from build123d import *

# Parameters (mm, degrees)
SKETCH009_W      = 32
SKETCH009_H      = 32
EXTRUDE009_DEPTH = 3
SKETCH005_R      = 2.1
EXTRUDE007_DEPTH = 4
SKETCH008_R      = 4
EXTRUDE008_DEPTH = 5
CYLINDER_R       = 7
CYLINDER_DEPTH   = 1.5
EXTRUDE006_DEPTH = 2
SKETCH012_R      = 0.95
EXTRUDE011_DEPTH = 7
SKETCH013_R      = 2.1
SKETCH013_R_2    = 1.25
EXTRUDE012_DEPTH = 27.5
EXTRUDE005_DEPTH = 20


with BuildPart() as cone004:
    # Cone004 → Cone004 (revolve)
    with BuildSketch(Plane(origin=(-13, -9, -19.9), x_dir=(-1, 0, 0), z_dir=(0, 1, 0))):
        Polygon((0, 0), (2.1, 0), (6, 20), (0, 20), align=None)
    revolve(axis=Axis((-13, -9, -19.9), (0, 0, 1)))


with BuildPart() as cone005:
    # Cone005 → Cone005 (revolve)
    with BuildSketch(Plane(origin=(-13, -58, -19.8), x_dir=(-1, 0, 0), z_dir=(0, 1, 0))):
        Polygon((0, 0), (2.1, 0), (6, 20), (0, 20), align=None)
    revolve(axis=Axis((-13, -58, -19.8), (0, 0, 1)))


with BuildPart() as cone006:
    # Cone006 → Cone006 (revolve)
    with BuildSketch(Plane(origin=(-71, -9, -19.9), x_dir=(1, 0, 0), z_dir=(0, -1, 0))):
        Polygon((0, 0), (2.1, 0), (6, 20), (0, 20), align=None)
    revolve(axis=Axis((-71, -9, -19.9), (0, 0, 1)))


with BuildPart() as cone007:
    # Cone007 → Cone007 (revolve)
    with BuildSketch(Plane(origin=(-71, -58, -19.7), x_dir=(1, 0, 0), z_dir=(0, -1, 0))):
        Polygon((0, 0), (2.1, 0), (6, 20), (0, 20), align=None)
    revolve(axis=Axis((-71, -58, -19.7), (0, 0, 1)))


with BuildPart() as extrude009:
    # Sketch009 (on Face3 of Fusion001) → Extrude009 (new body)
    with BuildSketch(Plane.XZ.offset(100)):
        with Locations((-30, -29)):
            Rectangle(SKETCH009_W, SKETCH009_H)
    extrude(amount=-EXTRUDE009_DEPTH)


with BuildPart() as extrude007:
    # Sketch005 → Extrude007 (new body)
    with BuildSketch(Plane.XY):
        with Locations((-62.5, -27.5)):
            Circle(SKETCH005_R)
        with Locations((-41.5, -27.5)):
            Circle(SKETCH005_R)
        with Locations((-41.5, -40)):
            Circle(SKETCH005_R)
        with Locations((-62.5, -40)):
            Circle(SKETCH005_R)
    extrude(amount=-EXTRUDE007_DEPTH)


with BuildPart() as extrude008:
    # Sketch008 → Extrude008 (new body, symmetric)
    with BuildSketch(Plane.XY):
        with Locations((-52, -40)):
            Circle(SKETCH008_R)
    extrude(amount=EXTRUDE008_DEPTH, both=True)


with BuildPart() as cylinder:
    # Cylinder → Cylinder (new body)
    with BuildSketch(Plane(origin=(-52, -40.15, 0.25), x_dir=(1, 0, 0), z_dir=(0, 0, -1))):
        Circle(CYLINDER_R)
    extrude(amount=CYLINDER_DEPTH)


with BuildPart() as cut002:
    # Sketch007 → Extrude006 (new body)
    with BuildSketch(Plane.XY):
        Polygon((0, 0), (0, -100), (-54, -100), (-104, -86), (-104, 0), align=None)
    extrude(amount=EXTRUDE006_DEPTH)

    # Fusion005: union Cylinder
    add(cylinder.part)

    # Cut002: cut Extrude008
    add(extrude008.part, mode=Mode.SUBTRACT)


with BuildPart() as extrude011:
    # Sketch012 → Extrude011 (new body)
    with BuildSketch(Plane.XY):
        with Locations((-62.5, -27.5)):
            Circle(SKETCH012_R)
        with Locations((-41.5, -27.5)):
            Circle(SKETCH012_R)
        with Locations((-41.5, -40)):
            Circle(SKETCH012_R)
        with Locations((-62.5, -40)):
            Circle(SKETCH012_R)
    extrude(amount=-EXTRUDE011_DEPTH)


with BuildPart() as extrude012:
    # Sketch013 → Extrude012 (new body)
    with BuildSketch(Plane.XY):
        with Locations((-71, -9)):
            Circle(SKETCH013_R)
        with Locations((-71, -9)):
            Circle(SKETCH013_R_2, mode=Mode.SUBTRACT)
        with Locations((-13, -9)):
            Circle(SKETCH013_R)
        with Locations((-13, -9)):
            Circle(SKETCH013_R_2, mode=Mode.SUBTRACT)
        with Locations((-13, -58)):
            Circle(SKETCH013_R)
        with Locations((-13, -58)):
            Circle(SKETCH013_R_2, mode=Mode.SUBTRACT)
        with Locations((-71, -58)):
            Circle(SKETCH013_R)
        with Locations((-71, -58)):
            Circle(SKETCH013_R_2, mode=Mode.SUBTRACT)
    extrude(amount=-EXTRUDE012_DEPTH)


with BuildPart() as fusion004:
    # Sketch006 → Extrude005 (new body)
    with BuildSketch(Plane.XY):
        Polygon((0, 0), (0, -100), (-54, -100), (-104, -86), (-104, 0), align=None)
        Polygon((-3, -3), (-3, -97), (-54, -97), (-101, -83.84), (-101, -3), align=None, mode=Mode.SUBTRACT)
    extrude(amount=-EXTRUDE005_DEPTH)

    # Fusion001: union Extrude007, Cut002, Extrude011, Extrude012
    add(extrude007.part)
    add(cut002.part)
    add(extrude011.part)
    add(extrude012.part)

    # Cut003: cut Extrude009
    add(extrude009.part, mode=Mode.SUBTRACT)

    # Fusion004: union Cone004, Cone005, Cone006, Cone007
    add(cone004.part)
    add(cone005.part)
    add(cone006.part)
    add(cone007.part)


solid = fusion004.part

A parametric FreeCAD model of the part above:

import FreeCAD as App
import Part
import Sketcher
Q = App.Units.Quantity


def add_polygon(sketch, points):
    """Adds a closed chain of lines whose ends are joined by coincident constraints."""
    first, n = sketch.GeometryCount, len(points)
    for a, b in zip(points, points[1:] + points[:1]):
        sketch.addGeometry(Part.LineSegment(App.Vector(*a, 0), App.Vector(*b, 0)), False)
    for i in range(n):
        sketch.addConstraint(Sketcher.Constraint("Coincident", first + i, 2, first + (i + 1) % n, 1))

doc = App.newDocument("Part")
params = doc.addObject("Spreadsheet::Sheet", "Params")
for row, (alias, value) in enumerate([
    ("sketch1_width", "6 mm"),
    ("sketch1_height", "20 mm"),
    ("sketch1_width2", "2.1 mm"),
    ("revolution_angle", "360 deg"),
    ("sketch2_width", "6 mm"),
    ("sketch2_height", "20 mm"),
    ("sketch2_width2", "2.1 mm"),
    ("revolution2_angle", "360 deg"),
    ("sketch3_width", "6 mm"),
    ("sketch3_height", "20 mm"),
    ("sketch3_width2", "2.1 mm"),
    ("revolution3_angle", "360 deg"),
    ("sketch4_width", "6 mm"),
    ("sketch4_height", "20 mm"),
    ("sketch4_width2", "2.1 mm"),
    ("revolution4_angle", "360 deg"),
    ("sketch5_width", "32 mm"),
    ("pad1_length", "3 mm"),
    ("sketch6_diameter", "4.2 mm"),
    ("pad2_length", "4 mm"),
    ("sketch7_diameter", "8 mm"),
    ("pad3_length", "10 mm"),
    ("sketch8_diameter", "14 mm"),
    ("pad4_length", "1.5 mm"),
    ("sketch9_width", "104 mm"),
    ("sketch9_width2", "54 mm"),
    ("sketch9_height", "100 mm"),
    ("sketch9_height2", "86 mm"),
    ("pad5_length", "2 mm"),
    ("sketch10_diameter", "1.9 mm"),
    ("pad6_length", "7 mm"),
    ("sketch11_diameter", "4.2 mm"),
    ("sketch11_diameter2", "2.5 mm"),
    ("pad7_length", "27.5 mm"),
    ("sketch12_width", "104 mm"),
    ("sketch12_width2", "54 mm"),
    ("sketch12_width3", "51 mm"),
    ("sketch12_width4", "98 mm"),
    ("sketch12_height", "100 mm"),
    ("pad8_length", "20 mm"),
], start=1):
    params.set(f"A{row}", alias)
    params.set(f"B{row}", "=" + value)
    params.setAlias(f"B{row}", alias)

body = doc.addObject("PartDesign::Body", "Body")

sketch1 = doc.addObject("Sketcher::SketchObject", "Sketch")
body.addObject(sketch1)
sketch1.AttachmentSupport = (doc.XZ_Plane, [""])
sketch1.MapMode = "FlatFace"
sketch1.AttachmentOffset = App.Placement(App.Vector(0, 0, 9), App.Rotation())
add_polygon(sketch1, [(-13, -19.9), (-15.1, -19.9), (-19, 0.1), (-13, 0.1)])
sketch1.addGeometry(Part.LineSegment(App.Vector(-13, -19.9, 0), App.Vector(-13, 0.1, 0)), True)
sketch1.addConstraint(Sketcher.Constraint("Horizontal", 0))
sketch1.addConstraint(Sketcher.Constraint("Horizontal", 2))
sketch1.addConstraint(Sketcher.Constraint("Vertical", 3))
sketch1.addConstraint(Sketcher.Constraint("Vertical", 4))
sketch1.addConstraint(Sketcher.Constraint("Coincident", 4, 1, 3, 2))
sketch1.addConstraint(Sketcher.Constraint("Horizontal", 1, 2, 4, 2))
sketch1.addConstraint(Sketcher.Constraint("DistanceX", 2, 1, 2, 2, Q("6 mm")))
sketch1.addConstraint(Sketcher.Constraint("DistanceY", 3, 2, 3, 1, Q("20 mm")))
sketch1.addConstraint(Sketcher.Constraint("DistanceX", 0, 2, 0, 1, Q("2.1 mm")))
sketch1.addConstraint(Sketcher.Constraint("DistanceX", 1, 2, -1, 1, Q("19 mm")))
sketch1.addConstraint(Sketcher.Constraint("DistanceY", 0, 2, -1, 1, Q("19.9 mm")))
sketch1.setExpression("Constraints[10]", "Params.sketch1_width")
sketch1.setExpression("Constraints[11]", "Params.sketch1_height")
sketch1.setExpression("Constraints[12]", "Params.sketch1_width2")
revolution = doc.addObject("PartDesign::Revolution", "Revolution")
body.addObject(revolution)
revolution.Profile = sketch1
revolution.ReferenceAxis = (sketch1, ["Axis0"])
revolution.setExpression("Angle", "Params.revolution_angle")
body2 = doc.addObject("PartDesign::Body", "Body001")

sketch2 = doc.addObject("Sketcher::SketchObject", "Sketch001")
body2.addObject(sketch2)
sketch2.AttachmentSupport = (doc.getObject("XZ_Plane001"), [""])
sketch2.MapMode = "FlatFace"
sketch2.AttachmentOffset = App.Placement(App.Vector(0, 0, 58), App.Rotation())
add_polygon(sketch2, [(-13, -19.8), (-15.1, -19.8), (-19, 0.2), (-13, 0.2)])
sketch2.addGeometry(Part.LineSegment(App.Vector(-13, -19.8, 0), App.Vector(-13, 0.2, 0)), True)
sketch2.addConstraint(Sketcher.Constraint("Horizontal", 0))
sketch2.addConstraint(Sketcher.Constraint("Horizontal", 2))
sketch2.addConstraint(Sketcher.Constraint("Vertical", 3))
sketch2.addConstraint(Sketcher.Constraint("Vertical", 4))
sketch2.addConstraint(Sketcher.Constraint("Coincident", 4, 1, 3, 2))
sketch2.addConstraint(Sketcher.Constraint("Horizontal", 1, 2, 4, 2))
sketch2.addConstraint(Sketcher.Constraint("DistanceX", 2, 1, 2, 2, Q("6 mm")))
sketch2.addConstraint(Sketcher.Constraint("DistanceY", 3, 2, 3, 1, Q("20 mm")))
sketch2.addConstraint(Sketcher.Constraint("DistanceX", 0, 2, 0, 1, Q("2.1 mm")))
sketch2.addConstraint(Sketcher.Constraint("DistanceX", 1, 2, -1, 1, Q("19 mm")))
sketch2.addConstraint(Sketcher.Constraint("DistanceY", 0, 2, -1, 1, Q("19.8 mm")))
sketch2.setExpression("Constraints[10]", "Params.sketch2_width")
sketch2.setExpression("Constraints[11]", "Params.sketch2_height")
sketch2.setExpression("Constraints[12]", "Params.sketch2_width2")
revolution2 = doc.addObject("PartDesign::Revolution", "Revolution001")
body2.addObject(revolution2)
revolution2.Profile = sketch2
revolution2.ReferenceAxis = (sketch2, ["Axis0"])
revolution2.setExpression("Angle", "Params.revolution2_angle")
body3 = doc.addObject("PartDesign::Body", "Body002")

sketch3 = doc.addObject("Sketcher::SketchObject", "Sketch002")
body3.addObject(sketch3)
sketch3.AttachmentSupport = (doc.getObject("XZ_Plane002"), [""])
sketch3.MapMode = "FlatFace"
sketch3.AttachmentOffset = App.Placement(App.Vector(0, 0, 9), App.Rotation())
add_polygon(sketch3, [(-71, -19.9), (-68.9, -19.9), (-65, 0.1), (-71, 0.1)])
sketch3.addGeometry(Part.LineSegment(App.Vector(-71, -19.9, 0), App.Vector(-71, 0.1, 0)), True)
sketch3.addConstraint(Sketcher.Constraint("Horizontal", 0))
sketch3.addConstraint(Sketcher.Constraint("Horizontal", 2))
sketch3.addConstraint(Sketcher.Constraint("Vertical", 3))
sketch3.addConstraint(Sketcher.Constraint("Vertical", 4))
sketch3.addConstraint(Sketcher.Constraint("Coincident", 4, 1, 3, 2))
sketch3.addConstraint(Sketcher.Constraint("Horizontal", 1, 2, 4, 2))
sketch3.addConstraint(Sketcher.Constraint("DistanceX", 2, 2, 2, 1, Q("6 mm")))
sketch3.addConstraint(Sketcher.Constraint("DistanceY", 3, 2, 3, 1, Q("20 mm")))
sketch3.addConstraint(Sketcher.Constraint("DistanceX", 0, 1, 0, 2, Q("2.1 mm")))
sketch3.addConstraint(Sketcher.Constraint("DistanceX", 1, 2, -1, 1, Q("65 mm")))
sketch3.addConstraint(Sketcher.Constraint("DistanceY", 0, 2, -1, 1, Q("19.9 mm")))
sketch3.setExpression("Constraints[10]", "Params.sketch3_width")
sketch3.setExpression("Constraints[11]", "Params.sketch3_height")
sketch3.setExpression("Constraints[12]", "Params.sketch3_width2")
revolution3 = doc.addObject("PartDesign::Revolution", "Revolution002")
body3.addObject(revolution3)
revolution3.Profile = sketch3
revolution3.ReferenceAxis = (sketch3, ["Axis0"])
revolution3.setExpression("Angle", "Params.revolution3_angle")
body4 = doc.addObject("PartDesign::Body", "Body003")

sketch4 = doc.addObject("Sketcher::SketchObject", "Sketch003")
body4.addObject(sketch4)
sketch4.AttachmentSupport = (doc.getObject("XZ_Plane003"), [""])
sketch4.MapMode = "FlatFace"
sketch4.AttachmentOffset = App.Placement(App.Vector(0, 0, 58), App.Rotation())
add_polygon(sketch4, [(-71, -19.7), (-68.9, -19.7), (-65, 0.3), (-71, 0.3)])
sketch4.addGeometry(Part.LineSegment(App.Vector(-71, -19.7, 0), App.Vector(-71, 0.3, 0)), True)
sketch4.addConstraint(Sketcher.Constraint("Horizontal", 0))
sketch4.addConstraint(Sketcher.Constraint("Horizontal", 2))
sketch4.addConstraint(Sketcher.Constraint("Vertical", 3))
sketch4.addConstraint(Sketcher.Constraint("Vertical", 4))
sketch4.addConstraint(Sketcher.Constraint("Coincident", 4, 1, 3, 2))
sketch4.addConstraint(Sketcher.Constraint("Horizontal", 1, 2, 4, 2))
sketch4.addConstraint(Sketcher.Constraint("DistanceX", 2, 2, 2, 1, Q("6 mm")))
sketch4.addConstraint(Sketcher.Constraint("DistanceY", 3, 2, 3, 1, Q("20 mm")))
sketch4.addConstraint(Sketcher.Constraint("DistanceX", 0, 1, 0, 2, Q("2.1 mm")))
sketch4.addConstraint(Sketcher.Constraint("DistanceX", 1, 2, -1, 1, Q("65 mm")))
sketch4.addConstraint(Sketcher.Constraint("DistanceY", 0, 2, -1, 1, Q("19.7 mm")))
sketch4.setExpression("Constraints[10]", "Params.sketch4_width")
sketch4.setExpression("Constraints[11]", "Params.sketch4_height")
sketch4.setExpression("Constraints[12]", "Params.sketch4_width2")
revolution4 = doc.addObject("PartDesign::Revolution", "Revolution003")
body4.addObject(revolution4)
revolution4.Profile = sketch4
revolution4.ReferenceAxis = (sketch4, ["Axis0"])
revolution4.setExpression("Angle", "Params.revolution4_angle")
body5 = doc.addObject("PartDesign::Body", "Body004")

sketch5 = doc.addObject("Sketcher::SketchObject", "Sketch004")
body5.addObject(sketch5)
sketch5.AttachmentSupport = (doc.getObject("XZ_Plane004"), [""])
sketch5.MapMode = "FlatFace"
sketch5.AttachmentOffset = App.Placement(App.Vector(0, 0, 100), App.Rotation())
add_polygon(sketch5, [(-46, -13), (-46, -45), (-14, -45), (-14, -13)])
sketch5.addConstraint(Sketcher.Constraint("Vertical", 0))
sketch5.addConstraint(Sketcher.Constraint("Horizontal", 1))
sketch5.addConstraint(Sketcher.Constraint("Vertical", 2))
sketch5.addConstraint(Sketcher.Constraint("Horizontal", 3))
sketch5.addConstraint(Sketcher.Constraint("Equal", 3, 0))
sketch5.addConstraint(Sketcher.Constraint("DistanceX", 1, 1, 1, 2, Q("32 mm")))
sketch5.addConstraint(Sketcher.Constraint("DistanceX", 0, 2, -1, 1, Q("46 mm")))
sketch5.addConstraint(Sketcher.Constraint("DistanceY", 0, 2, -1, 1, Q("45 mm")))
sketch5.setExpression("Constraints[9]", "Params.sketch5_width")
pad1 = doc.addObject("PartDesign::Pad", "Pad")
body5.addObject(pad1)
pad1.Profile = sketch5
pad1.setExpression("Length", "Params.pad1_length")
pad1.Reversed = True
body6 = doc.addObject("PartDesign::Body", "Body005")
body6.AllowCompound = True

sketch6 = doc.addObject("Sketcher::SketchObject", "Sketch005")
body6.addObject(sketch6)
sketch6.AttachmentSupport = (doc.getObject("XY_Plane005"), [""])
sketch6.MapMode = "FlatFace"
sketch6.addGeometry(Part.Circle(App.Vector(-62.5, -27.5, 0), App.Vector(0, 0, 1), 2.1), False)
sketch6.addGeometry(Part.Circle(App.Vector(-41.5, -27.5, 0), App.Vector(0, 0, 1), 2.1), False)
sketch6.addGeometry(Part.Circle(App.Vector(-41.5, -40, 0), App.Vector(0, 0, 1), 2.1), False)
sketch6.addGeometry(Part.Circle(App.Vector(-62.5, -40, 0), App.Vector(0, 0, 1), 2.1), False)
sketch6.addConstraint(Sketcher.Constraint("Equal", 0, 1))
sketch6.addConstraint(Sketcher.Constraint("Equal", 1, 2))
sketch6.addConstraint(Sketcher.Constraint("Equal", 2, 3))
sketch6.addConstraint(Sketcher.Constraint("Horizontal", 0, 3, 1, 3))
sketch6.addConstraint(Sketcher.Constraint("Horizontal", 2, 3, 3, 3))
sketch6.addConstraint(Sketcher.Constraint("Vertical", 1, 3, 2, 3))
sketch6.addConstraint(Sketcher.Constraint("Vertical", 0, 3, 3, 3))
sketch6.addConstraint(Sketcher.Constraint("Diameter", 0, Q("4.2 mm")))
sketch6.addConstraint(Sketcher.Constraint("DistanceY", 2, 3, -1, 1, Q("40 mm")))
sketch6.addConstraint(Sketcher.Constraint("DistanceX", 0, 3, 1, 3, Q("21 mm")))
sketch6.addConstraint(Sketcher.Constraint("DistanceX", 0, 3, -1, 1, Q("62.5 mm")))
sketch6.addConstraint(Sketcher.Constraint("DistanceY", 0, 3, -1, 1, Q("27.5 mm")))
sketch6.setExpression("Constraints[7]", "Params.sketch6_diameter")
pad2 = doc.addObject("PartDesign::Pad", "Pad001")
body6.addObject(pad2)
pad2.Profile = sketch6
pad2.setExpression("Length", "Params.pad2_length")
pad2.Reversed = True
body7 = doc.addObject("PartDesign::Body", "Body006")

sketch7 = doc.addObject("Sketcher::SketchObject", "Sketch006")
body7.addObject(sketch7)
sketch7.AttachmentSupport = (doc.getObject("XY_Plane006"), [""])
sketch7.MapMode = "FlatFace"
sketch7.addGeometry(Part.Circle(App.Vector(-52, -40, 0), App.Vector(0, 0, 1), 4), False)
sketch7.addConstraint(Sketcher.Constraint("Diameter", 0, Q("8 mm")))
sketch7.addConstraint(Sketcher.Constraint("DistanceX", 0, 3, -1, 1, Q("52 mm")))
sketch7.addConstraint(Sketcher.Constraint("DistanceY", 0, 3, -1, 1, Q("40 mm")))
sketch7.setExpression("Constraints[0]", "Params.sketch7_diameter")
pad3 = doc.addObject("PartDesign::Pad", "Pad002")
body7.addObject(pad3)
pad3.Profile = sketch7
pad3.setExpression("Length", "Params.pad3_length")
pad3.Midplane = True
body8 = doc.addObject("PartDesign::Body", "Body007")

sketch8 = doc.addObject("Sketcher::SketchObject", "Sketch007")
body8.addObject(sketch8)
sketch8.AttachmentSupport = (doc.getObject("XY_Plane007"), [""])
sketch8.MapMode = "FlatFace"
sketch8.AttachmentOffset = App.Placement(App.Vector(0, 0, 0.25), App.Rotation())
sketch8.addGeometry(Part.Circle(App.Vector(-52, -40.15, 0), App.Vector(0, 0, 1), 7), False)
sketch8.addConstraint(Sketcher.Constraint("Diameter", 0, Q("14 mm")))
sketch8.addConstraint(Sketcher.Constraint("DistanceX", 0, 3, -1, 1, Q("52 mm")))
sketch8.addConstraint(Sketcher.Constraint("DistanceY", 0, 3, -1, 1, Q("40.15 mm")))
sketch8.setExpression("Constraints[0]", "Params.sketch8_diameter")
pad4 = doc.addObject("PartDesign::Pad", "Pad003")
body8.addObject(pad4)
pad4.Profile = sketch8
pad4.setExpression("Length", "Params.pad4_length")
pad4.Reversed = True
body9 = doc.addObject("PartDesign::Body", "Body008")

sketch9 = doc.addObject("Sketcher::SketchObject", "Sketch008")
body9.addObject(sketch9)
sketch9.AttachmentSupport = (doc.getObject("XY_Plane008"), [""])
sketch9.MapMode = "FlatFace"
add_polygon(sketch9, [(0, -100), (0, 0), (-104, 0), (-104, -86), (-54, -100)])
sketch9.addConstraint(Sketcher.Constraint("Vertical", 0))
sketch9.addConstraint(Sketcher.Constraint("Horizontal", 1))
sketch9.addConstraint(Sketcher.Constraint("Vertical", 2))
sketch9.addConstraint(Sketcher.Constraint("Horizontal", 4))
sketch9.addConstraint(Sketcher.Constraint("Coincident", 0, 2, -1, 1))
sketch9.addConstraint(Sketcher.Constraint("DistanceX", 1, 2, 1, 1, Q("104 mm")))
sketch9.addConstraint(Sketcher.Constraint("DistanceX", 4, 1, 4, 2, Q("54 mm")))
sketch9.addConstraint(Sketcher.Constraint("DistanceY", 0, 1, 0, 2, Q("100 mm")))
sketch9.addConstraint(Sketcher.Constraint("DistanceY", 2, 2, 2, 1, Q("86 mm")))
sketch9.setExpression("Constraints[10]", "Params.sketch9_width")
sketch9.setExpression("Constraints[11]", "Params.sketch9_width2")
sketch9.setExpression("Constraints[12]", "Params.sketch9_height")
sketch9.setExpression("Constraints[13]", "Params.sketch9_height2")
pad5 = doc.addObject("PartDesign::Pad", "Pad004")
body9.addObject(pad5)
pad5.Profile = sketch9
pad5.setExpression("Length", "Params.pad5_length")
doc.recompute()

boolean = doc.addObject("PartDesign::Boolean", "Boolean")
body9.addObject(boolean)
boolean.Type = "Fuse"
boolean.addObjects([body8])
doc.recompute()

boolean2 = doc.addObject("PartDesign::Boolean", "Boolean001")
body9.addObject(boolean2)
boolean2.Type = "Cut"
boolean2.addObjects([body7])
body10 = doc.addObject("PartDesign::Body", "Body009")
body10.AllowCompound = True

sketch10 = doc.addObject("Sketcher::SketchObject", "Sketch009")
body10.addObject(sketch10)
sketch10.AttachmentSupport = (doc.getObject("XY_Plane009"), [""])
sketch10.MapMode = "FlatFace"
sketch10.addGeometry(Part.Circle(App.Vector(-62.5, -27.5, 0), App.Vector(0, 0, 1), 0.95), False)
sketch10.addGeometry(Part.Circle(App.Vector(-41.5, -27.5, 0), App.Vector(0, 0, 1), 0.95), False)
sketch10.addGeometry(Part.Circle(App.Vector(-41.5, -40, 0), App.Vector(0, 0, 1), 0.95), False)
sketch10.addGeometry(Part.Circle(App.Vector(-62.5, -40, 0), App.Vector(0, 0, 1), 0.95), False)
sketch10.addConstraint(Sketcher.Constraint("Equal", 0, 1))
sketch10.addConstraint(Sketcher.Constraint("Equal", 1, 2))
sketch10.addConstraint(Sketcher.Constraint("Equal", 2, 3))
sketch10.addConstraint(Sketcher.Constraint("Horizontal", 0, 3, 1, 3))
sketch10.addConstraint(Sketcher.Constraint("Horizontal", 2, 3, 3, 3))
sketch10.addConstraint(Sketcher.Constraint("Vertical", 1, 3, 2, 3))
sketch10.addConstraint(Sketcher.Constraint("Vertical", 0, 3, 3, 3))
sketch10.addConstraint(Sketcher.Constraint("Diameter", 0, Q("1.9 mm")))
sketch10.addConstraint(Sketcher.Constraint("DistanceY", 2, 3, -1, 1, Q("40 mm")))
sketch10.addConstraint(Sketcher.Constraint("DistanceX", 0, 3, 1, 3, Q("21 mm")))
sketch10.addConstraint(Sketcher.Constraint("DistanceX", 0, 3, -1, 1, Q("62.5 mm")))
sketch10.addConstraint(Sketcher.Constraint("DistanceY", 0, 3, -1, 1, Q("27.5 mm")))
sketch10.setExpression("Constraints[7]", "Params.sketch10_diameter")
pad6 = doc.addObject("PartDesign::Pad", "Pad005")
body10.addObject(pad6)
pad6.Profile = sketch10
pad6.setExpression("Length", "Params.pad6_length")
pad6.Reversed = True
body11 = doc.addObject("PartDesign::Body", "Body010")
body11.AllowCompound = True

sketch11 = doc.addObject("Sketcher::SketchObject", "Sketch010")
body11.addObject(sketch11)
sketch11.AttachmentSupport = (doc.getObject("XY_Plane010"), [""])
sketch11.MapMode = "FlatFace"
sketch11.addGeometry(Part.Circle(App.Vector(-71, -9, 0), App.Vector(0, 0, 1), 2.1), False)
sketch11.addGeometry(Part.Circle(App.Vector(-71, -9, 0), App.Vector(0, 0, 1), 1.25), False)
sketch11.addGeometry(Part.Circle(App.Vector(-13, -9, 0), App.Vector(0, 0, 1), 2.1), False)
sketch11.addGeometry(Part.Circle(App.Vector(-13, -9, 0), App.Vector(0, 0, 1), 1.25), False)
sketch11.addGeometry(Part.Circle(App.Vector(-13, -58, 0), App.Vector(0, 0, 1), 2.1), False)
sketch11.addGeometry(Part.Circle(App.Vector(-13, -58, 0), App.Vector(0, 0, 1), 1.25), False)
sketch11.addGeometry(Part.Circle(App.Vector(-71, -58, 0), App.Vector(0, 0, 1), 2.1), False)
sketch11.addGeometry(Part.Circle(App.Vector(-71, -58, 0), App.Vector(0, 0, 1), 1.25), False)
sketch11.addConstraint(Sketcher.Constraint("Coincident", 1, 3, 0, 3))
sketch11.addConstraint(Sketcher.Constraint("Coincident", 3, 3, 2, 3))
sketch11.addConstraint(Sketcher.Constraint("Coincident", 5, 3, 4, 3))
sketch11.addConstraint(Sketcher.Constraint("Coincident", 7, 3, 6, 3))
sketch11.addConstraint(Sketcher.Constraint("Equal", 0, 2))
sketch11.addConstraint(Sketcher.Constraint("Equal", 1, 3))
sketch11.addConstraint(Sketcher.Constraint("Equal", 2, 4))
sketch11.addConstraint(Sketcher.Constraint("Equal", 3, 5))
sketch11.addConstraint(Sketcher.Constraint("Equal", 4, 6))
sketch11.addConstraint(Sketcher.Constraint("Equal", 5, 7))
sketch11.addConstraint(Sketcher.Constraint("Horizontal", 1, 3, 2, 3))
sketch11.addConstraint(Sketcher.Constraint("Horizontal", 5, 3, 6, 3))
sketch11.addConstraint(Sketcher.Constraint("Vertical", 3, 3, 4, 3))
sketch11.addConstraint(Sketcher.Constraint("Vertical", 1, 3, 6, 3))
sketch11.addConstraint(Sketcher.Constraint("Diameter", 0, Q("4.2 mm")))
sketch11.addConstraint(Sketcher.Constraint("Diameter", 1, Q("2.5 mm")))
sketch11.addConstraint(Sketcher.Constraint("DistanceX", 0, 3, -1, 1, Q("71 mm")))
sketch11.addConstraint(Sketcher.Constraint("DistanceY", 0, 3, -1, 1, Q("9 mm")))
sketch11.addConstraint(Sketcher.Constraint("DistanceX", 2, 3, -1, 1, Q("13 mm")))
sketch11.addConstraint(Sketcher.Constraint("DistanceY", 4, 3, -1, 1, Q("58 mm")))
sketch11.setExpression("Constraints[14]", "Params.sketch11_diameter")
sketch11.setExpression("Constraints[15]", "Params.sketch11_diameter2")
pad7 = doc.addObject("PartDesign::Pad", "Pad006")
body11.addObject(pad7)
pad7.Profile = sketch11
pad7.setExpression("Length", "Params.pad7_length")
pad7.Reversed = True
body12 = doc.addObject("PartDesign::Body", "Body011")
body12.AllowCompound = True

sketch12 = doc.addObject("Sketcher::SketchObject", "Sketch011")
body12.addObject(sketch12)
sketch12.AttachmentSupport = (doc.getObject("XY_Plane011"), [""])
sketch12.MapMode = "FlatFace"
add_polygon(sketch12, [(0, -100), (0, 0), (-104, 0), (-104, -86), (-54, -100)])
add_polygon(sketch12, [(-3, -3), (-3, -97), (-54, -97), (-101, -83.84), (-101, -3)])
sketch12.addConstraint(Sketcher.Constraint("Vertical", 0))
sketch12.addConstraint(Sketcher.Constraint("Horizontal", 1))
sketch12.addConstraint(Sketcher.Constraint("Vertical", 2))
sketch12.addConstraint(Sketcher.Constraint("Horizontal", 4))
sketch12.addConstraint(Sketcher.Constraint("Vertical", 5))
sketch12.addConstraint(Sketcher.Constraint("Horizontal", 6))
sketch12.addConstraint(Sketcher.Constraint("Vertical", 8))
sketch12.addConstraint(Sketcher.Constraint("Horizontal", 9))
sketch12.addConstraint(Sketcher.Constraint("Coincident", 0, 2, -1, 1))
sketch12.addConstraint(Sketcher.Constraint("Parallel", 3, 7))
sketch12.addConstraint(Sketcher.Constraint("Vertical", 3, 2, 6, 2))
sketch12.addConstraint(Sketcher.Constraint("DistanceX", 1, 2, 1, 1, Q("104 mm")))
sketch12.addConstraint(Sketcher.Constraint("DistanceX", 4, 1, 4, 2, Q("54 mm")))
sketch12.addConstraint(Sketcher.Constraint("DistanceX", 6, 2, 6, 1, Q("51 mm")))
sketch12.addConstraint(Sketcher.Constraint("DistanceX", 9, 1, 9, 2, Q("98 mm")))
sketch12.addConstraint(Sketcher.Constraint("DistanceY", 0, 1, 0, 2, Q("100 mm")))
sketch12.addConstraint(Sketcher.Constraint("DistanceY", 2, 2, 2, 1, Q("86 mm")))
sketch12.addConstraint(Sketcher.Constraint("DistanceY", 5, 2, 5, 1, Q("94 mm")))
sketch12.addConstraint(Sketcher.Constraint("DistanceY", 5, 2, -1, 1, Q("97 mm")))
sketch12.setExpression("Constraints[21]", "Params.sketch12_width")
sketch12.setExpression("Constraints[22]", "Params.sketch12_width2")
sketch12.setExpression("Constraints[23]", "Params.sketch12_width3")
sketch12.setExpression("Constraints[24]", "Params.sketch12_width4")
sketch12.setExpression("Constraints[25]", "Params.sketch12_height")
pad8 = doc.addObject("PartDesign::Pad", "Pad007")
body12.addObject(pad8)
pad8.Profile = sketch12
pad8.setExpression("Length", "Params.pad8_length")
pad8.Reversed = True
doc.recompute()

boolean3 = doc.addObject("PartDesign::Boolean", "Boolean002")
body12.addObject(boolean3)
boolean3.Type = "Fuse"
boolean3.addObjects([body6])
doc.recompute()

boolean4 = doc.addObject("PartDesign::Boolean", "Boolean003")
body12.addObject(boolean4)
boolean4.Type = "Fuse"
boolean4.addObjects([body9])
doc.recompute()

boolean5 = doc.addObject("PartDesign::Boolean", "Boolean004")
body12.addObject(boolean5)
boolean5.Type = "Fuse"
boolean5.addObjects([body10])
doc.recompute()

boolean6 = doc.addObject("PartDesign::Boolean", "Boolean005")
body12.addObject(boolean6)
boolean6.Type = "Fuse"
boolean6.addObjects([body11])
doc.recompute()

boolean7 = doc.addObject("PartDesign::Boolean", "Boolean006")
body12.addObject(boolean7)
boolean7.Type = "Cut"
boolean7.addObjects([body5])
doc.recompute()

boolean8 = doc.addObject("PartDesign::Boolean", "Boolean007")
body12.addObject(boolean8)
boolean8.Type = "Fuse"
boolean8.addObjects([body])
doc.recompute()

boolean9 = doc.addObject("PartDesign::Boolean", "Boolean008")
body12.addObject(boolean9)
boolean9.Type = "Fuse"
boolean9.addObjects([body2])
doc.recompute()

boolean10 = doc.addObject("PartDesign::Boolean", "Boolean009")
body12.addObject(boolean10)
boolean10.Type = "Fuse"
boolean10.addObjects([body3])
doc.recompute()

boolean11 = doc.addObject("PartDesign::Boolean", "Boolean010")
body12.addObject(boolean11)
boolean11.Type = "Fuse"
boolean11.addObjects([body4])

doc.recompute()
